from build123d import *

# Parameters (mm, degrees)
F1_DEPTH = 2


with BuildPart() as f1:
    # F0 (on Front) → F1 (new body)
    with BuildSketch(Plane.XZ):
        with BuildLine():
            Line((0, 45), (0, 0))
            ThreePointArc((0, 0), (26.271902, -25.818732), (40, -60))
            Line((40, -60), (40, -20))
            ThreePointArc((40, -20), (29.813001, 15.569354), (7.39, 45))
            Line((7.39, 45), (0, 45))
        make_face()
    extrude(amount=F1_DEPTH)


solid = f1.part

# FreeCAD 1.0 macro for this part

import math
import FreeCAD as App
import Part
import Sketcher
from FreeCAD import Vector
Q = App.Units.Quantity

doc = App.newDocument("Part")
body = doc.addObject("PartDesign::Body", "Body")

# Sketch on XZ plane
sketch1 = body.newObject("Sketcher::SketchObject", "Sketch")
sketch1.AttachmentSupport = (doc.getObject("XZ_Plane"), [""])
sketch1.MapMode = "FlatFace"
sketch1.addGeometry(Part.LineSegment(Vector(0, 45, 0), Vector(0, 0, 0)), False)
sketch1.addGeometry(Part.ArcOfCircle(Part.Circle(Vector(-49, -76, 0), Vector(0, 0, 1), 90), math.radians(10), math.radians(57)), False)
sketch1.addGeometry(Part.LineSegment(Vector(40, -60, 0), Vector(40, -20, 0)), False)
sketch1.addGeometry(Part.ArcOfCircle(Part.Circle(Vector(-60, -29, 0), Vector(0, 0, 1), 100), math.radians(5), math.radians(48)), False)
sketch1.addGeometry(Part.LineSegment(Vector(7, 45, 0), Vector(0, 45, 0)), False)
sketch1.addConstraint(Sketcher.Constraint("Coincident", 0, 2, 1, 2))
sketch1.addConstraint(Sketcher.Constraint("Coincident", 1, 1, 2, 1))
sketch1.addConstraint(Sketcher.Constraint("Coincident", 2, 2, 3, 1))
sketch1.addConstraint(Sketcher.Constraint("Coincident", 3, 2, 4, 1))
sketch1.addConstraint(Sketcher.Constraint("Coincident", 4, 2, 0, 1))
sketch1.addConstraint(Sketcher.Constraint("Vertical", 0))
sketch1.addConstraint(Sketcher.Constraint("Vertical", 2))
sketch1.addConstraint(Sketcher.Constraint("Horizontal", 4))
sketch1.addConstraint(Sketcher.Constraint("Coincident", 0, 2, -1, 1))
sketch1.addConstraint(Sketcher.Constraint("Radius", 3, Q("99.999999 mm")))
sketch1.addConstraint(Sketcher.Constraint("DistanceY", 0, 2, 0, 1, Q("45 mm")))
sketch1.addConstraint(Sketcher.Constraint("DistanceY", 2, 1, 2, 2, Q("40 mm")))
sketch1.addConstraint(Sketcher.Constraint("DistanceX", -1, 1, 1, 1, Q("40 mm")))
sketch1.addConstraint(Sketcher.Constraint("DistanceY", 1, 1, -1, 1, Q("60 mm")))
sketch1.addConstraint(Sketcher.Constraint("DistanceX", 4, 2, 4, 1, Q("7.39 mm")))
sketch1.addConstraint(Sketcher.Constraint("Radius", 1, Q("89.999993 mm")))
pad1 = body.newObject("PartDesign::Pad", "Pad")
pad1.Profile = sketch1
pad1.Length = 2

doc.recompute()
